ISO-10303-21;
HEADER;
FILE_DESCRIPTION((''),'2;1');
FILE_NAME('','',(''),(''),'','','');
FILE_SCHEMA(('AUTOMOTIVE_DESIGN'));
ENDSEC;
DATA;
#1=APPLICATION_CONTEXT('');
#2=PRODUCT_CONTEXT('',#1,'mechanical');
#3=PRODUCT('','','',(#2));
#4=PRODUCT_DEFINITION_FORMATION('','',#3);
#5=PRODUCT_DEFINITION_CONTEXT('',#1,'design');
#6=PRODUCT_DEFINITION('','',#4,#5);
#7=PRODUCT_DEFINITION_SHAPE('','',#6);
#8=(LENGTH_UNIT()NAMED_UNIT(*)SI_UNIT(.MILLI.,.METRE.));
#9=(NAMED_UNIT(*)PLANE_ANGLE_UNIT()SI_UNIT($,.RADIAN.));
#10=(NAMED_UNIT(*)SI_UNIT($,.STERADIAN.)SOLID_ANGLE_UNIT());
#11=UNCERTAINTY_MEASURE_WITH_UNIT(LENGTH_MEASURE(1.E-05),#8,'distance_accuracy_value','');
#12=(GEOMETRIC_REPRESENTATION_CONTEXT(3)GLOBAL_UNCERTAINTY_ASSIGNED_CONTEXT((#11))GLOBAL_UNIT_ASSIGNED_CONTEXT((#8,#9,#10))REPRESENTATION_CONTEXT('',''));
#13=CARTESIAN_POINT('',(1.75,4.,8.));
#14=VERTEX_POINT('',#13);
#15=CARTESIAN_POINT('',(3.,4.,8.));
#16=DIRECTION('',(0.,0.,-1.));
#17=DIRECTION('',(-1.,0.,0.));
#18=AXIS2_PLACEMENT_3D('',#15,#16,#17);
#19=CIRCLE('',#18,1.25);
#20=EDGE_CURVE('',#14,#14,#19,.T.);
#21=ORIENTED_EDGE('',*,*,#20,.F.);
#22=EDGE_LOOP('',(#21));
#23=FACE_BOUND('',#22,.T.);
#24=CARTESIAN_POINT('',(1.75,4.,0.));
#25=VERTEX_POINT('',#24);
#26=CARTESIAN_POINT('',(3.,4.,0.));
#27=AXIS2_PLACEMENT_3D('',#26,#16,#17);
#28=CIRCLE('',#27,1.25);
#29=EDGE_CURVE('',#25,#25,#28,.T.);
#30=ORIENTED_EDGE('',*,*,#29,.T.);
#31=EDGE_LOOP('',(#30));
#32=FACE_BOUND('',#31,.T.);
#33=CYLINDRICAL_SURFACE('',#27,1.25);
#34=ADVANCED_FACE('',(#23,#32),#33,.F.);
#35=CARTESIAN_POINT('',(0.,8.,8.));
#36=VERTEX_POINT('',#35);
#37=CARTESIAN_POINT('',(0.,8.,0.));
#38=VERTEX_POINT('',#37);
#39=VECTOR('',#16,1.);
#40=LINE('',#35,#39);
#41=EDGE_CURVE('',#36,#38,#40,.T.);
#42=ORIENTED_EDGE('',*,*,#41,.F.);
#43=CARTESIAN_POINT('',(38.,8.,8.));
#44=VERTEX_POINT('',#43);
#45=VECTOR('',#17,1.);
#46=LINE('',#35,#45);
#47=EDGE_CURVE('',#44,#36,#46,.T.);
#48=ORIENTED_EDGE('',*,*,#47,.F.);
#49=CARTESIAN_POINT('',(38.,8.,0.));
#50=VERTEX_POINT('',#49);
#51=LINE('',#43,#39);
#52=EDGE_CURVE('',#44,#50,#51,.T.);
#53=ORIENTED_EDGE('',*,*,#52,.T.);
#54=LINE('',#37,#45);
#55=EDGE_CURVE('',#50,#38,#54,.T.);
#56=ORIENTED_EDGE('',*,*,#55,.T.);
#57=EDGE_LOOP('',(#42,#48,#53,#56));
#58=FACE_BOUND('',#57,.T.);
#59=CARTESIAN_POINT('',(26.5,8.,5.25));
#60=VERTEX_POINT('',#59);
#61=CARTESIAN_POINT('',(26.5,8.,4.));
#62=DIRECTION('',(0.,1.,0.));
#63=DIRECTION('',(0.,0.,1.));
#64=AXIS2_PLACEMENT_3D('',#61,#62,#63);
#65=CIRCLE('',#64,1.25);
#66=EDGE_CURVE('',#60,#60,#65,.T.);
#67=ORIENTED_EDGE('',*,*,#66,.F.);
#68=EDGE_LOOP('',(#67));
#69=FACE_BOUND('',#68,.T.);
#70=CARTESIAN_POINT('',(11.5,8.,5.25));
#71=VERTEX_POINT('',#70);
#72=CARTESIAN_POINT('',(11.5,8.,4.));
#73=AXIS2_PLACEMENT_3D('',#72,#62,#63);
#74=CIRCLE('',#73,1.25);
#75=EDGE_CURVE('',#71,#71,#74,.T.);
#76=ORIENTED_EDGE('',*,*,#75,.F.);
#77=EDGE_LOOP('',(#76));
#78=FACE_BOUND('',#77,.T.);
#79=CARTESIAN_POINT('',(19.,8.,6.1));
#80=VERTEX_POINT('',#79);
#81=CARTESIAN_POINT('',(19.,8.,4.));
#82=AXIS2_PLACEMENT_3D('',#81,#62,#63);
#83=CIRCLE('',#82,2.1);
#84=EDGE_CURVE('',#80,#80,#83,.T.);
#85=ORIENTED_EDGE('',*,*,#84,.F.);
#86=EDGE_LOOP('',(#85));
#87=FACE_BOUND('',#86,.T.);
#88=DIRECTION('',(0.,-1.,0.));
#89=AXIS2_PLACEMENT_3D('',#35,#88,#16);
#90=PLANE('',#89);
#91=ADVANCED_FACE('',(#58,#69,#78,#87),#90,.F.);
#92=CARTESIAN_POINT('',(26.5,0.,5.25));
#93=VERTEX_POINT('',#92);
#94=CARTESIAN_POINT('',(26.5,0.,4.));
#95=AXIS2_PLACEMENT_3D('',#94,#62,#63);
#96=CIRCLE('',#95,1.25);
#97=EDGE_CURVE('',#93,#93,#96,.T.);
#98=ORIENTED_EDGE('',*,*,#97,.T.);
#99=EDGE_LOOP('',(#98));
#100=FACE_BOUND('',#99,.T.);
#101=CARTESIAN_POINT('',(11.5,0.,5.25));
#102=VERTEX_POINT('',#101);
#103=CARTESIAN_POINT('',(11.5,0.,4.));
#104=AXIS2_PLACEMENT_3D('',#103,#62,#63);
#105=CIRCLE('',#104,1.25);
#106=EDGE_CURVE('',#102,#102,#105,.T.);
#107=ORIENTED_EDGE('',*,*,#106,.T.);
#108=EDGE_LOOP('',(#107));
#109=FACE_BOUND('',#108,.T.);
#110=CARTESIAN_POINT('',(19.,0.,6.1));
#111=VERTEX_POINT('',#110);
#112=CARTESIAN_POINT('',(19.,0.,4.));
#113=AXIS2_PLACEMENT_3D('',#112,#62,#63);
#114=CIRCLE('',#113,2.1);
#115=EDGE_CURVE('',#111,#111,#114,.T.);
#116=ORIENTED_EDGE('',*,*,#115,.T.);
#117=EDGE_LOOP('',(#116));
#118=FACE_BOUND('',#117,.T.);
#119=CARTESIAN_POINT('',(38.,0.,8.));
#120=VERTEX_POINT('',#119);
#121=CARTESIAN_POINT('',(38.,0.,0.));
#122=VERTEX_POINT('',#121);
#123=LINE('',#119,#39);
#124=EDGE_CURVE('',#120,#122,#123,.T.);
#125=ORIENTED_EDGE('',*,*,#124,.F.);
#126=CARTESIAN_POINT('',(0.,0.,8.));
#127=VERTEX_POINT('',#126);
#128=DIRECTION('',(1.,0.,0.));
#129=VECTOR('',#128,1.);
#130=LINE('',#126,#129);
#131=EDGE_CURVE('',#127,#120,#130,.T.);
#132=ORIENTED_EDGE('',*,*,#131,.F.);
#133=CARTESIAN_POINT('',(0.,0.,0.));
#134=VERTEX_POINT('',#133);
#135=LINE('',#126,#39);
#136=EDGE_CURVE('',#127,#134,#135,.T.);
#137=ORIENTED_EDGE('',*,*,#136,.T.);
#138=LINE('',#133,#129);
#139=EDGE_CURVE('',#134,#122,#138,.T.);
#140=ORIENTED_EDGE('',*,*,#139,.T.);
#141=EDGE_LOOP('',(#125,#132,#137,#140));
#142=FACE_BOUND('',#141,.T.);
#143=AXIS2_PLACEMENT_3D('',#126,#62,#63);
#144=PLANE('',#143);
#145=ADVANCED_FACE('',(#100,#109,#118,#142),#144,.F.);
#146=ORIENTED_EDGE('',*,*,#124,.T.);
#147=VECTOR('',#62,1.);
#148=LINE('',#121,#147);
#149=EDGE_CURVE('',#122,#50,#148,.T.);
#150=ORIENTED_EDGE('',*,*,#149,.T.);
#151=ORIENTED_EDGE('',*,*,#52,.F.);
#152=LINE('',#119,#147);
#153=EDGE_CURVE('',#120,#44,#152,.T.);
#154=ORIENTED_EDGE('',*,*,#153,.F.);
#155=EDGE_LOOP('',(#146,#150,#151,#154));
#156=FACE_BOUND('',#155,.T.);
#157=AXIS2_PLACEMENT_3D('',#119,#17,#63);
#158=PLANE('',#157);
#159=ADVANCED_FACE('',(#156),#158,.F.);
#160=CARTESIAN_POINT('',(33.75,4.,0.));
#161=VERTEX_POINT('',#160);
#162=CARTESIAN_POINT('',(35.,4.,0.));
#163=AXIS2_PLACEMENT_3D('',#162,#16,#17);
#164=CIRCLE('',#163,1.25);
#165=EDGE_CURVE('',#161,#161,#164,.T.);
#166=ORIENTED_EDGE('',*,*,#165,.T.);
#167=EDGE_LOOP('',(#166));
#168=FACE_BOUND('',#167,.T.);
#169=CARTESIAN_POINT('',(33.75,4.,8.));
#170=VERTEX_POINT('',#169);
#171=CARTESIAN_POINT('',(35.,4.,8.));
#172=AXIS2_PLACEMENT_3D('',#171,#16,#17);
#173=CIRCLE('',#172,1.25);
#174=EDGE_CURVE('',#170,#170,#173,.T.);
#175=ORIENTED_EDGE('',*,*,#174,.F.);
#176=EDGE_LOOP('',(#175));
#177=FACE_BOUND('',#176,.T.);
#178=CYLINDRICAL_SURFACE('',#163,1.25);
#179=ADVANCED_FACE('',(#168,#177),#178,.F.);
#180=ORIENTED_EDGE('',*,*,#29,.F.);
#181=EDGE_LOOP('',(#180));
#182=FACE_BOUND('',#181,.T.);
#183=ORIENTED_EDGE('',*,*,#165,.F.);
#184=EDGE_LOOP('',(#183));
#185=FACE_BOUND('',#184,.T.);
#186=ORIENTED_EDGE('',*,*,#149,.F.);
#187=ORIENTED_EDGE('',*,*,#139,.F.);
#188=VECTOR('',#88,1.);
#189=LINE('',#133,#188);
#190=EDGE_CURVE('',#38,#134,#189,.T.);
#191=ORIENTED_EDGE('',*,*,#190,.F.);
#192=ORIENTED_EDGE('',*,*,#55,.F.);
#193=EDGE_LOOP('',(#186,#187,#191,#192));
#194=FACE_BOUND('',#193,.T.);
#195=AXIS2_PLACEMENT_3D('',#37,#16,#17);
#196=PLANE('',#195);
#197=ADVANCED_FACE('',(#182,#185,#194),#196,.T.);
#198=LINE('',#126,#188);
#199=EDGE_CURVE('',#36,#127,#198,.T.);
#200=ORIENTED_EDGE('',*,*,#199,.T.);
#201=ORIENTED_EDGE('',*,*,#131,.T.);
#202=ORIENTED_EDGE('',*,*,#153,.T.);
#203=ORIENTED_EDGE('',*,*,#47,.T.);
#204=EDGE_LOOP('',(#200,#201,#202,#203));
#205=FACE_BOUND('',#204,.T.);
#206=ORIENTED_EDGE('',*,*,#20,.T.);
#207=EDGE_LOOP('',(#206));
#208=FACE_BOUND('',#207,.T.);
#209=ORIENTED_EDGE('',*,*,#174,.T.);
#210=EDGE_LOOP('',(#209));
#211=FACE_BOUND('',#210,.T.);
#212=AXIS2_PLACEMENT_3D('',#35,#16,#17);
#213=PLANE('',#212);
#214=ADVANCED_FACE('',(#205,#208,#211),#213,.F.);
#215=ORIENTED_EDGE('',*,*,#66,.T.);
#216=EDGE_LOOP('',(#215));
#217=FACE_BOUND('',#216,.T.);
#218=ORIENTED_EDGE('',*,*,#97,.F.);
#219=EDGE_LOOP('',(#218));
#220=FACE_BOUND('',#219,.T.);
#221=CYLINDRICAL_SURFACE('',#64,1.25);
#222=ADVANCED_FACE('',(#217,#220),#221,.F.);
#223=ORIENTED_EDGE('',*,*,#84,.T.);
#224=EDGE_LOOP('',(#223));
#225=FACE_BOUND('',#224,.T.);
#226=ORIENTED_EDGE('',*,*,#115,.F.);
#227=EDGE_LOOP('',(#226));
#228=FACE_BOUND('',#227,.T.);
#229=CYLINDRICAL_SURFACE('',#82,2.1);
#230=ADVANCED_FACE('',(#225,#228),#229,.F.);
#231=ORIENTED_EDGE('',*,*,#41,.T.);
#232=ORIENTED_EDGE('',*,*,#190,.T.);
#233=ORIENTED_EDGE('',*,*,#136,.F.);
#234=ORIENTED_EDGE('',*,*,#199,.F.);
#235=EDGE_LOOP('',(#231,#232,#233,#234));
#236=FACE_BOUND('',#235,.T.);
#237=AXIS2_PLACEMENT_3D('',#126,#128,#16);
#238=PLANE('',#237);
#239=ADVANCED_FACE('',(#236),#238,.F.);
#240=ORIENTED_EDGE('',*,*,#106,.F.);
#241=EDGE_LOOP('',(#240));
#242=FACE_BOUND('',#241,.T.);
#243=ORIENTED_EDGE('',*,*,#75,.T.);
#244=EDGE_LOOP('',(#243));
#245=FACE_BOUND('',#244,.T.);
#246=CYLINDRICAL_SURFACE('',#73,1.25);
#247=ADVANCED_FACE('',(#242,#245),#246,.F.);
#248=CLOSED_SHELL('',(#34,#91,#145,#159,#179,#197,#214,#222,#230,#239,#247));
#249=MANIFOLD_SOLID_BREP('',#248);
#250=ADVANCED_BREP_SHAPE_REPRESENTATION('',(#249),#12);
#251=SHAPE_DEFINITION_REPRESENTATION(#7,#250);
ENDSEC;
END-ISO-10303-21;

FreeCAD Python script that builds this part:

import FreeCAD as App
import Part
import Sketcher

V = App.Vector


def add_polygon(sketch, points):
    """Adds a closed chain of lines whose ends are joined by coincident constraints."""
    first, n = sketch.GeometryCount, len(points)
    for a, b in zip(points, points[1:] + points[:1]):
        sketch.addGeometry(Part.LineSegment(App.Vector(*a, 0), App.Vector(*b, 0)), False)
    for i in range(n):
        sketch.addConstraint(Sketcher.Constraint("Coincident", first + i, 2, first + (i + 1) % n, 1))

doc = App.newDocument("Part")
body = doc.addObject("PartDesign::Body", "Body")

# Sketch on XY plane
sketch1 = body.newObject("Sketcher::SketchObject", "Sketch")
sketch1.AttachmentSupport = (doc.getObject("XY_Plane"), [""])
sketch1.MapMode = "FlatFace"
add_polygon(sketch1, [(0, 8), (0, 0), (38, 0), (38, 8)])  # lines 0-3
sketch1.addConstraint(Sketcher.Constraint("Vertical", 0))
sketch1.addConstraint(Sketcher.Constraint("Horizontal", 1))
sketch1.addConstraint(Sketcher.Constraint("Vertical", 2))
sketch1.addConstraint(Sketcher.Constraint("Horizontal", 3))
sketch1.addConstraint(Sketcher.Constraint("Coincident", 0, 2, -1, 1))
sketch1.addConstraint(Sketcher.Constraint("DistanceX", 1, 1, 1, 2, 38.0))
sketch1.addConstraint(Sketcher.Constraint("DistanceY", 0, 2, 0, 1, 8.0))
pad1 = body.newObject("PartDesign::Pad", "Pad")
pad1.Profile = sketch1
pad1.Length = 8

# Sketch on XZ plane
sketch2 = body.newObject("Sketcher::SketchObject", "Sketch001")
sketch2.AttachmentSupport = (doc.getObject("XZ_Plane"), [""])
sketch2.MapMode = "FlatFace"
sketch2.AttachmentOffset = App.Placement(V(0, 0, -8), App.Rotation())
sketch2.addGeometry(Part.Circle(V(19, 4, 0), V(0, 0, 1), 2.1), False)
sketch2.addConstraint(Sketcher.Constraint("Diameter", 0, 4.2))
sketch2.addConstraint(Sketcher.Constraint("DistanceX", -1, 1, 0, 3, 19.0))
sketch2.addConstraint(Sketcher.Constraint("DistanceY", -1, 1, 0, 3, 4.0))
doc.recompute()
hole = body.newObject("PartDesign::Hole", "Hole")
hole.Profile = sketch2
hole.ThreadType = "None"
hole.Diameter = 4.2
hole.DepthType = "ThroughAll"
hole.Reversed = True

# Sketch on XY plane
sketch3 = body.newObject("Sketcher::SketchObject", "Sketch002")
sketch3.AttachmentSupport = (doc.getObject("XY_Plane"), [""])
sketch3.MapMode = "FlatFace"
sketch3.addGeometry(Part.Circle(V(35, 4, 0), V(0, 0, 1), 1.2), False)
sketch3.addGeometry(Part.Circle(V(3, 4, 0), V(0, 0, 1), 1.2), False)
sketch3.addConstraint(Sketcher.Constraint("Equal", 0, 1))
sketch3.addConstraint(Sketcher.Constraint("Horizontal", 0, 3, 1, 3))
sketch3.addConstraint(Sketcher.Constraint("Diameter", 0, 2.5))
sketch3.addConstraint(Sketcher.Constraint("DistanceX", -1, 1, 0, 3, 35.0))
sketch3.addConstraint(Sketcher.Constraint("DistanceY", -1, 1, 0, 3, 4.0))
sketch3.addConstraint(Sketcher.Constraint("DistanceX", -1, 1, 1, 3, 3.0))
doc.recompute()
hole2 = body.newObject("PartDesign::Hole", "Hole001")
hole2.Profile = sketch3
hole2.ThreadType = "None"
hole2.Diameter = 2.5
hole2.DepthType = "ThroughAll"
hole2.Reversed = True

# Sketch on XZ plane
sketch4 = body.newObject("Sketcher::SketchObject", "Sketch003")
sketch4.AttachmentSupport = (doc.getObject("XZ_Plane"), [""])
sketch4.MapMode = "FlatFace"
sketch4.AttachmentOffset = App.Placement(V(0, 0, -8), App.Rotation())
sketch4.addGeometry(Part.Circle(V(11.5, 4, 0), V(0, 0, 1), 1.2), False)
sketch4.addGeometry(Part.Circle(V(26.5, 4, 0), V(0, 0, 1), 1.2), False)
sketch4.addConstraint(Sketcher.Constraint("Equal", 0, 1))
sketch4.addConstraint(Sketcher.Constraint("Horizontal", 0, 3, 1, 3))
sketch4.addConstraint(Sketcher.Constraint("Diameter", 0, 2.5))
sketch4.addConstraint(Sketcher.Constraint("DistanceY", -1, 1, 0, 3, 4.0))
sketch4.addConstraint(Sketcher.Constraint("DistanceX", 0, 3, 1, 3, 15.0))
sketch4.addConstraint(Sketcher.Constraint("DistanceX", -1, 1, 0, 3, 11.5))
doc.recompute()
hole3 = body.newObject("PartDesign::Hole", "Hole002")
hole3.Profile = sketch4
hole3.ThreadType = "None"
hole3.Diameter = 2.5
hole3.DepthType = "ThroughAll"
hole3.Reversed = True

doc.recompute()
